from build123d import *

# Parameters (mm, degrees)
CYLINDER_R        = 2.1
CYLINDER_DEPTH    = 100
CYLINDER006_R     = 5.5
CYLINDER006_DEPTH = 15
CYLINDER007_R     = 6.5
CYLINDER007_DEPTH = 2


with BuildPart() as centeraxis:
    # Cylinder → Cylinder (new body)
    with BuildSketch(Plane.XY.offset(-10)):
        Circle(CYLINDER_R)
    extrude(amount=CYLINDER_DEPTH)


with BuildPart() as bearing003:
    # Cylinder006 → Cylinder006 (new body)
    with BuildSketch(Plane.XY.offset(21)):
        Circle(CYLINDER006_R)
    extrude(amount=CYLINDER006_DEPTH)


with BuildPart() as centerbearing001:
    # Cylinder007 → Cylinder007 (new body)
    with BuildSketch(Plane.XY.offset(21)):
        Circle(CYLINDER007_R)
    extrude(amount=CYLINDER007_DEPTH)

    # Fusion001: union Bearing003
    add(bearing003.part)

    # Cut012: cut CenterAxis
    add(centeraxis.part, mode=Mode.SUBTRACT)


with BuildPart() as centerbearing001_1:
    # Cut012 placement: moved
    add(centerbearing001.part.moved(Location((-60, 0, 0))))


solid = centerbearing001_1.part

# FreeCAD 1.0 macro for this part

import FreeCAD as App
import Part
import Sketcher

doc = App.newDocument("Part")
body = doc.addObject("PartDesign::Body", "Body")

sketch1 = body.newObject("Sketcher::SketchObject", "Sketch")
sketch1.AttachmentSupport = (doc.getObject("XY_Plane"), [""])
sketch1.MapMode = "FlatFace"
sketch1.AttachmentOffset = App.Placement(App.Vector(0, 0, -10), App.Rotation())
sketch1.addGeometry(Part.Circle(App.Vector(0, 0, 0), App.Vector(0, 0, 1), 2.1), False)
sketch1.addConstraint([
    Sketcher.Constraint("Coincident", 0, 3, -1, 1),
    Sketcher.Constraint("Diameter", 0, 4.2),
])
pad1 = body.newObject("PartDesign::Pad", "Pad")
pad1.Profile = sketch1
pad1.Length = 100
body2 = doc.addObject("PartDesign::Body", "Body001")

sketch2 = body2.newObject("Sketcher::SketchObject", "Sketch001")
sketch2.AttachmentSupport = (doc.getObject("XY_Plane001"), [""])
sketch2.MapMode = "FlatFace"
sketch2.AttachmentOffset = App.Placement(App.Vector(0, 0, 21), App.Rotation())
sketch2.addGeometry(Part.Circle(App.Vector(0, 0, 0), App.Vector(0, 0, 1), 5.5), False)
sketch2.addConstraint([
    Sketcher.Constraint("Coincident", 0, 3, -1, 1),
    Sketcher.Constraint("Diameter", 0, 11.0),
])
pad2 = body2.newObject("PartDesign::Pad", "Pad001")
pad2.Profile = sketch2
pad2.Length = 15
body3 = doc.addObject("PartDesign::Body", "Body002")

sketch3 = body3.newObject("Sketcher::SketchObject", "Sketch002")
sketch3.AttachmentSupport = (doc.getObject("XY_Plane002"), [""])
sketch3.MapMode = "FlatFace"
sketch3.AttachmentOffset = App.Placement(App.Vector(0, 0, 21), App.Rotation())
sketch3.addGeometry(Part.Circle(App.Vector(0, 0, 0), App.Vector(0, 0, 1), 6.5), False)
sketch3.addConstraint([
    Sketcher.Constraint("Coincident", 0, 3, -1, 1),
    Sketcher.Constraint("Diameter", 0, 13.0),
])
pad3 = body3.newObject("PartDesign::Pad", "Pad002")
pad3.Profile = sketch3
pad3.Length = 2
doc.recompute()

boolean = body3.newObject("PartDesign::Boolean", "Boolean")
boolean.Type = "Fuse"
boolean.addObjects([body2])
doc.recompute()

boolean2 = body3.newObject("PartDesign::Boolean", "Boolean001")
boolean2.Type = "Cut"
boolean2.addObjects([body])
body4 = doc.addObject("PartDesign::Body", "Body003")
doc.recompute()

body3.Placement = App.Placement(App.Vector(-60, 0, 0), App.Rotation(App.Vector(0, 0, 1), 0))
boolean3 = body4.newObject("PartDesign::Boolean", "Boolean002")
boolean3.Type = "Fuse"
boolean3.addObjects([body3])

doc.recompute()
